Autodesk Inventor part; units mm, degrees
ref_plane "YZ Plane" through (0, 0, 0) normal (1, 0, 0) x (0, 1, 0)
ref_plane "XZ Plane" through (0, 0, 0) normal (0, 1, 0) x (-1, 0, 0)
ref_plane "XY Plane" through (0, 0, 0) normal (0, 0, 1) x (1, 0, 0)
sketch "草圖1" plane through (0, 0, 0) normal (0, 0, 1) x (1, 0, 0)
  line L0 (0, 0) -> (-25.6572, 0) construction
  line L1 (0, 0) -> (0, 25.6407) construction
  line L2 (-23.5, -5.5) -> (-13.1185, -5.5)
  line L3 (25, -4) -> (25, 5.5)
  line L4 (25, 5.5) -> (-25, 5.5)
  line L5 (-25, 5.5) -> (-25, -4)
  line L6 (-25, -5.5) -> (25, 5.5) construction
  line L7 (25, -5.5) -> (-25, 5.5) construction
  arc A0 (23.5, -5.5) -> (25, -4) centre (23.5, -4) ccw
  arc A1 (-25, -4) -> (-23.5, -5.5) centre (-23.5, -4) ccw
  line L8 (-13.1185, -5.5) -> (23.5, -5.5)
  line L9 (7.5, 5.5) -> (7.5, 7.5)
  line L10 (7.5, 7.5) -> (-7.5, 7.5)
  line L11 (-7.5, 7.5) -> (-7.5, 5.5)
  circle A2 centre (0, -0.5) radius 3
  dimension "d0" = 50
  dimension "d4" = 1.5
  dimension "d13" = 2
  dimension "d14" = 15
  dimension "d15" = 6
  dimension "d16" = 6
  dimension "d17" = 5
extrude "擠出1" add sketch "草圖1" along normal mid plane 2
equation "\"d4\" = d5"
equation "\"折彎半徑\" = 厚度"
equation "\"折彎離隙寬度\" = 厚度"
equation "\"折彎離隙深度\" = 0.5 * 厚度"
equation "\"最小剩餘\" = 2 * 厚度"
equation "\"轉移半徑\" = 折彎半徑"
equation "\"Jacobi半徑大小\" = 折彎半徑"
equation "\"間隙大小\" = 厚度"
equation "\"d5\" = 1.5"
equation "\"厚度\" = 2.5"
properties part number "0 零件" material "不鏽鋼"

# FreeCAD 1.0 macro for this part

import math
import FreeCAD as App
import Part
import Sketcher
from FreeCAD import Vector

doc = App.newDocument("Part")
body = doc.addObject("PartDesign::Body", "Body")

sketch1 = body.newObject("Sketcher::SketchObject", "Sketch")
sketch1.AttachmentSupport = (doc.getObject("XY_Plane"), [""])
sketch1.MapMode = "FlatFace"
sketch1.addGeometry([
    Part.ArcOfCircle(Part.Circle(Vector(-23.5, -4, 0), Vector(0, 0, 1), 1.5), math.radians(180), math.radians(270)),
    Part.LineSegment(Vector(-23.5, -5.5, 0), Vector(23.5, -5.5, 0)),
    Part.ArcOfCircle(Part.Circle(Vector(23.5, -4, 0), Vector(0, 0, 1), 1.5), math.radians(-90), math.radians(0)),
    Part.LineSegment(Vector(25, -4, 0), Vector(25, 5.5, 0)),
    Part.LineSegment(Vector(25, 5.5, 0), Vector(7.5, 5.5, 0)),
    Part.LineSegment(Vector(7.5, 5.5, 0), Vector(7.5, 7.5, 0)),
    Part.LineSegment(Vector(7.5, 7.5, 0), Vector(-7.5, 7.5, 0)),
    Part.LineSegment(Vector(-7.5, 7.5, 0), Vector(-7.5, 5.5, 0)),
    Part.LineSegment(Vector(-7.5, 5.5, 0), Vector(-25, 5.5, 0)),
    Part.LineSegment(Vector(-25, 5.5, 0), Vector(-25, -4, 0)),
    Part.Circle(Vector(0, -0.5, 0), Vector(0, 0, 1), 3),
], False)
sketch1.addConstraint([
    Sketcher.Constraint("Tangent", 0, 2, 1, 1),
    Sketcher.Constraint("Tangent", 1, 2, 2, 1),
    Sketcher.Constraint("Tangent", 2, 2, 3, 1),
    Sketcher.Constraint("Coincident", 3, 2, 4, 1),
    Sketcher.Constraint("Coincident", 4, 2, 5, 1),
    Sketcher.Constraint("Coincident", 5, 2, 6, 1),
    Sketcher.Constraint("Coincident", 6, 2, 7, 1),
    Sketcher.Constraint("Coincident", 7, 2, 8, 1),
    Sketcher.Constraint("Coincident", 8, 2, 9, 1),
    Sketcher.Constraint("Tangent", 9, 2, 0, 1),
    Sketcher.Constraint("Horizontal", 1),
    Sketcher.Constraint("Vertical", 3),
    Sketcher.Constraint("Horizontal", 4),
    Sketcher.Constraint("Vertical", 5),
    Sketcher.Constraint("Horizontal", 6),
    Sketcher.Constraint("Vertical", 7),
    Sketcher.Constraint("Horizontal", 8),
    Sketcher.Constraint("Vertical", 9),
    Sketcher.Constraint("Equal", 0, 2),
    Sketcher.Constraint("Symmetric", 4, 2, 7, 2, -2),
    Sketcher.Constraint("PointOnObject", 10, 3, -2),
    Sketcher.Constraint("Equal", 4, 8),
    Sketcher.Constraint("Diameter", 10, 6.0),
    Sketcher.Constraint("Radius", 0, 1.5),
    Sketcher.Constraint("DistanceX", 6, 2, 6, 1, 15.0),
    Sketcher.Constraint("DistanceY", 5, 1, 5, 2, 2.0),
    Sketcher.Constraint("DistanceY", 0, 2, 10, 3, 5.0),
    Sketcher.Constraint("DistanceY", 10, 3, 3, 2, 6.0),
    Sketcher.Constraint("DistanceX", 1, 1, 1, 2, 47.0),
    Sketcher.Constraint("DistanceY", 0, 3, -1, 1, 4.0),
])
pad1 = body.newObject("PartDesign::Pad", "Pad")
pad1.Profile = sketch1
pad1.Length = 2
pad1.Midplane = True

doc.recompute()
